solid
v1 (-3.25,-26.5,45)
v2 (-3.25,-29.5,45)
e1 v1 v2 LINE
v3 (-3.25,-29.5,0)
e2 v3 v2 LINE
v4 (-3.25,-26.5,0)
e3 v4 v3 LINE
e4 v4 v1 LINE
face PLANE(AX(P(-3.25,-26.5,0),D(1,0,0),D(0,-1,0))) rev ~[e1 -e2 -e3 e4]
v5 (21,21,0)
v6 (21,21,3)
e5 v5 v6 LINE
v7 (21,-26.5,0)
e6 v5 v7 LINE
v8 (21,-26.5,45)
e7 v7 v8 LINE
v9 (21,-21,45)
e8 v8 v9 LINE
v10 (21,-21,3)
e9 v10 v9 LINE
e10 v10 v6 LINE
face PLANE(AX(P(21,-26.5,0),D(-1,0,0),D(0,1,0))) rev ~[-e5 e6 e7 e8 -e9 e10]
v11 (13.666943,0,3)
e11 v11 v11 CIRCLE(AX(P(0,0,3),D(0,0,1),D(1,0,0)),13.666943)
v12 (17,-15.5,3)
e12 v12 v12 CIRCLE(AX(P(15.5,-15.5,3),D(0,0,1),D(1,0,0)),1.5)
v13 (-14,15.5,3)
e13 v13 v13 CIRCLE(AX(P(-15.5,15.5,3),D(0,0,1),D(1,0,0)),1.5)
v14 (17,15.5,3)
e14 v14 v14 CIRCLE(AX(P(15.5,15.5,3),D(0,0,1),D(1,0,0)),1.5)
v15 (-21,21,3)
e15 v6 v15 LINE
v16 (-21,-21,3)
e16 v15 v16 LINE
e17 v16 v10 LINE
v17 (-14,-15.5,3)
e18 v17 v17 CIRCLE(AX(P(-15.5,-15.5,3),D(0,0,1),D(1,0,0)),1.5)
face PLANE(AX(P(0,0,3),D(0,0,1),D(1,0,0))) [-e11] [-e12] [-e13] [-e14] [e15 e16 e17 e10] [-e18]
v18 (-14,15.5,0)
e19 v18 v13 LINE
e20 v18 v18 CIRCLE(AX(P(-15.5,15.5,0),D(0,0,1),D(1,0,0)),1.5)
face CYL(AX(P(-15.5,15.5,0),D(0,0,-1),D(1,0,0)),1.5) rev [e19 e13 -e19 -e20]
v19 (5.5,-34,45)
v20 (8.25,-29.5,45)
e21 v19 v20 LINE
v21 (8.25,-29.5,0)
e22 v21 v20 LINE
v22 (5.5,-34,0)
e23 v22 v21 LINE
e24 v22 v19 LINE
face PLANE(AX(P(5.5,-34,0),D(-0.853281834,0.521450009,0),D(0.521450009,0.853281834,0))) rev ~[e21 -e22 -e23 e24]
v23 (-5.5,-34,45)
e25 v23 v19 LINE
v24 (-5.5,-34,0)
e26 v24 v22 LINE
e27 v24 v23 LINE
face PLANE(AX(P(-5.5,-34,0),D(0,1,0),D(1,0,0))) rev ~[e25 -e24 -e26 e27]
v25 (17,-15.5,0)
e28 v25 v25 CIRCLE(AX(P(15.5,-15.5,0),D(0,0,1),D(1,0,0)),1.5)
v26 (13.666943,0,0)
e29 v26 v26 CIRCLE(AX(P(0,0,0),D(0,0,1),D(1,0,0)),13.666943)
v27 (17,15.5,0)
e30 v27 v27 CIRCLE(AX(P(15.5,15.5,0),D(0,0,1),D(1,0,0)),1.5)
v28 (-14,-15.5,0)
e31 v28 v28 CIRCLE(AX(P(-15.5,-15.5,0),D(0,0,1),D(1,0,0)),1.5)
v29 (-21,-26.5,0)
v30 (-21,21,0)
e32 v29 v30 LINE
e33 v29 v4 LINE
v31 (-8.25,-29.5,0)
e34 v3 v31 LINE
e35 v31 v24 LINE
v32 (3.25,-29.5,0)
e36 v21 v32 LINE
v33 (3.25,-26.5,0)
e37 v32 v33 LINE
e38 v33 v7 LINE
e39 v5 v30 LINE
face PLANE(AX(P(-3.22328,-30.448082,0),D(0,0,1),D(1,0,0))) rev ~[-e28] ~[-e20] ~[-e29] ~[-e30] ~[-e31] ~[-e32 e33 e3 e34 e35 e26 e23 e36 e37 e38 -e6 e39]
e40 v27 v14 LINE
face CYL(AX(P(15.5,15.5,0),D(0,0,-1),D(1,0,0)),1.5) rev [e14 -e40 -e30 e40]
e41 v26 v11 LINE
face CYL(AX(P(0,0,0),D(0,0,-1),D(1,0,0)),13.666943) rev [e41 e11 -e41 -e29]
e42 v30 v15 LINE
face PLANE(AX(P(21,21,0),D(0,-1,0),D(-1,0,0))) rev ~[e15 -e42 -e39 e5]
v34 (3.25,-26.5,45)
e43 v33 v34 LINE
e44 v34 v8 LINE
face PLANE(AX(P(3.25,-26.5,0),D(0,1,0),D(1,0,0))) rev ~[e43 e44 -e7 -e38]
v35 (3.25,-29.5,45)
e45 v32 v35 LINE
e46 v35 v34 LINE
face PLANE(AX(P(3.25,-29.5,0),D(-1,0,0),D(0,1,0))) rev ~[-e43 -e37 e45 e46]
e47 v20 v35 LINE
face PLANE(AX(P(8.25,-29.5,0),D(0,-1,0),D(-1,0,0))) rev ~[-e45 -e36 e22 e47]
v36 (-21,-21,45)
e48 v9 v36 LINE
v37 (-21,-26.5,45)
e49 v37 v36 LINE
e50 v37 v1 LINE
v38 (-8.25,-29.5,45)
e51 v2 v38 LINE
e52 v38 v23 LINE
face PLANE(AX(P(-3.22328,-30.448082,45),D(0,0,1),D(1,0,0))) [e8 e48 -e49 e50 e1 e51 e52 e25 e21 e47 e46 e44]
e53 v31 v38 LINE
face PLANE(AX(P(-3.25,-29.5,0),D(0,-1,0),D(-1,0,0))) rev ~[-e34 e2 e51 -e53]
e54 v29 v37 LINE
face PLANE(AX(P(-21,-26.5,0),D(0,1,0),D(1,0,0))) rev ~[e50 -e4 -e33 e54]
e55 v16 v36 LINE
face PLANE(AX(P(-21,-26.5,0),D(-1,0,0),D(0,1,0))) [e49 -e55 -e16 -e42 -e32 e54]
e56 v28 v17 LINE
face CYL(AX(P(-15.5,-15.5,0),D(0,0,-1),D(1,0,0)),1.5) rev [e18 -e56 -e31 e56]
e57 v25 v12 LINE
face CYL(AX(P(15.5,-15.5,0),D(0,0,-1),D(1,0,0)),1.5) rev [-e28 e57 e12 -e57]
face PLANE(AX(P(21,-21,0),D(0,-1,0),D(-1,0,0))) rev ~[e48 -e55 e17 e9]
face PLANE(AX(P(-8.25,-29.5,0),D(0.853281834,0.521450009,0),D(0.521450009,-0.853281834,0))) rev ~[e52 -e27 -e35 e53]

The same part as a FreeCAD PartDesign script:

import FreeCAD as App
import Part
import Sketcher
from FreeCAD import Vector

doc = App.newDocument("Part")
body = doc.addObject("PartDesign::Body", "Body")

sketch1 = doc.addObject("Sketcher::SketchObject", "Sketch")
body.addObject(sketch1)
sketch1.AttachmentSupport = (doc.XY_Plane, [""])
sketch1.MapMode = "FlatFace"
sketch1.addGeometry([
    Part.LineSegment(Vector(21, 21, 0), Vector(-21, 21, 0)),
    Part.LineSegment(Vector(-21, 21, 0), Vector(-21, -21, 0)),
    Part.LineSegment(Vector(-21, -21, 0), Vector(21, -21, 0)),
    Part.LineSegment(Vector(21, -21, 0), Vector(21, 21, 0)),
    Part.Circle(Vector(-15.5, -15.5, 0), Vector(0, 0, 1), 1.5),
    Part.Circle(Vector(15.5, -15.5, 0), Vector(0, 0, 1), 1.5),
    Part.Circle(Vector(-15.5, 15.5, 0), Vector(0, 0, 1), 1.5),
    Part.Circle(Vector(0, 0, 0), Vector(0, 0, 1), 13.7),
    Part.Circle(Vector(15.5, 15.5, 0), Vector(0, 0, 1), 1.5),
], False)
sketch1.addConstraint([
    Sketcher.Constraint("Coincident", 0, 2, 1, 1),
    Sketcher.Constraint("Coincident", 1, 2, 2, 1),
    Sketcher.Constraint("Coincident", 2, 2, 3, 1),
    Sketcher.Constraint("Coincident", 3, 2, 0, 1),
    Sketcher.Constraint("Horizontal", 0),
    Sketcher.Constraint("Vertical", 1),
    Sketcher.Constraint("Horizontal", 2),
    Sketcher.Constraint("Vertical", 3),
    Sketcher.Constraint("Coincident", 7, 3, -1, 1),
    Sketcher.Constraint("Equal", 4, 5),
    Sketcher.Constraint("Equal", 5, 6),
    Sketcher.Constraint("Equal", 6, 8),
    Sketcher.Constraint("Symmetric", 5, 3, 6, 3, -1, 1),
    Sketcher.Constraint("Symmetric", 4, 3, 8, 3, -1, 1),
    Sketcher.Constraint("Symmetric", 0, 2, 2, 2, -1, 1),
    Sketcher.Constraint("Symmetric", 4, 3, 5, 3, -2),
    Sketcher.Constraint("Equal", 2, 1),
    Sketcher.Constraint("Diameter", 4, 3.0),
    Sketcher.Constraint("DistanceX", 0, 2, 0, 1, 42.0),
    Sketcher.Constraint("DistanceX", 4, 3, 5, 3, 31.0),
    Sketcher.Constraint("DistanceY", 4, 3, 6, 3, 31.0),
    Sketcher.Constraint("Diameter", 7, 27.333886),
])
pad1 = doc.addObject("PartDesign::Pad", "Pad")
body.addObject(pad1)
pad1.Profile = sketch1
pad1.Length = 3

sketch2 = doc.addObject("Sketcher::SketchObject", "Sketch001")
body.addObject(sketch2)
sketch2.AttachmentSupport = (doc.XY_Plane, [""])
sketch2.MapMode = "FlatFace"
sketch2.addGeometry([
    Part.LineSegment(Vector(-3.2, -26.5, 0), Vector(-3.2, -29.5, 0)),
    Part.LineSegment(Vector(-3.2, -29.5, 0), Vector(-8.2, -29.5, 0)),
    Part.LineSegment(Vector(-8.2, -29.5, 0), Vector(-5.5, -34, 0)),
    Part.LineSegment(Vector(-5.5, -34, 0), Vector(5.5, -34, 0)),
    Part.LineSegment(Vector(5.5, -34, 0), Vector(8.2, -29.5, 0)),
    Part.LineSegment(Vector(8.2, -29.5, 0), Vector(3.2, -29.5, 0)),
    Part.LineSegment(Vector(3.2, -29.5, 0), Vector(3.2, -26.5, 0)),
    Part.LineSegment(Vector(3.2, -26.5, 0), Vector(21, -26.5, 0)),
    Part.LineSegment(Vector(21, -26.5, 0), Vector(21, -21, 0)),
    Part.LineSegment(Vector(21, -21, 0), Vector(-21, -21, 0)),
    Part.LineSegment(Vector(-21, -21, 0), Vector(-21, -26.5, 0)),
    Part.LineSegment(Vector(-21, -26.5, 0), Vector(-3.2, -26.5, 0)),
], False)
sketch2.addConstraint([
    Sketcher.Constraint("Coincident", 0, 2, 1, 1),
    Sketcher.Constraint("Coincident", 1, 2, 2, 1),
    Sketcher.Constraint("Coincident", 2, 2, 3, 1),
    Sketcher.Constraint("Coincident", 3, 2, 4, 1),
    Sketcher.Constraint("Coincident", 4, 2, 5, 1),
    Sketcher.Constraint("Coincident", 5, 2, 6, 1),
    Sketcher.Constraint("Coincident", 6, 2, 7, 1),
    Sketcher.Constraint("Coincident", 7, 2, 8, 1),
    Sketcher.Constraint("Coincident", 8, 2, 9, 1),
    Sketcher.Constraint("Coincident", 9, 2, 10, 1),
    Sketcher.Constraint("Coincident", 10, 2, 11, 1),
    Sketcher.Constraint("Coincident", 11, 2, 0, 1),
    Sketcher.Constraint("Vertical", 0),
    Sketcher.Constraint("Horizontal", 1),
    Sketcher.Constraint("Horizontal", 3),
    Sketcher.Constraint("Horizontal", 5),
    Sketcher.Constraint("Vertical", 6),
    Sketcher.Constraint("Horizontal", 7),
    Sketcher.Constraint("Vertical", 8),
    Sketcher.Constraint("Horizontal", 9),
    Sketcher.Constraint("Vertical", 10),
    Sketcher.Constraint("Horizontal", 11),
    Sketcher.Constraint("Symmetric", 1, 2, 4, 2, -2),
    Sketcher.Constraint("Symmetric", 7, 2, 10, 2, -2),
    Sketcher.Constraint("Equal", 1, 5),
    Sketcher.Constraint("Equal", 2, 4),
    Sketcher.Constraint("DistanceX", 1, 2, 1, 1, 5.0),
    Sketcher.Constraint("DistanceX", 3, 1, 3, 2, 11.0),
    Sketcher.Constraint("DistanceX", 9, 2, 9, 1, 42.0),
    Sketcher.Constraint("DistanceY", 0, 2, 0, 1, 3.0),
    Sketcher.Constraint("DistanceY", 8, 1, 8, 2, 5.5),
    Sketcher.Constraint("DistanceY", 2, 2, -1, 1, 34.0),
    Sketcher.Constraint("DistanceY", 8, 2, -1, 1, 21.0),
    Sketcher.Constraint("DistanceX", 7, 1, 7, 2, 17.75),
])
pad2 = doc.addObject("PartDesign::Pad", "Pad001")
body.addObject(pad2)
pad2.Profile = sketch2
pad2.Length = 45

doc.recompute()
